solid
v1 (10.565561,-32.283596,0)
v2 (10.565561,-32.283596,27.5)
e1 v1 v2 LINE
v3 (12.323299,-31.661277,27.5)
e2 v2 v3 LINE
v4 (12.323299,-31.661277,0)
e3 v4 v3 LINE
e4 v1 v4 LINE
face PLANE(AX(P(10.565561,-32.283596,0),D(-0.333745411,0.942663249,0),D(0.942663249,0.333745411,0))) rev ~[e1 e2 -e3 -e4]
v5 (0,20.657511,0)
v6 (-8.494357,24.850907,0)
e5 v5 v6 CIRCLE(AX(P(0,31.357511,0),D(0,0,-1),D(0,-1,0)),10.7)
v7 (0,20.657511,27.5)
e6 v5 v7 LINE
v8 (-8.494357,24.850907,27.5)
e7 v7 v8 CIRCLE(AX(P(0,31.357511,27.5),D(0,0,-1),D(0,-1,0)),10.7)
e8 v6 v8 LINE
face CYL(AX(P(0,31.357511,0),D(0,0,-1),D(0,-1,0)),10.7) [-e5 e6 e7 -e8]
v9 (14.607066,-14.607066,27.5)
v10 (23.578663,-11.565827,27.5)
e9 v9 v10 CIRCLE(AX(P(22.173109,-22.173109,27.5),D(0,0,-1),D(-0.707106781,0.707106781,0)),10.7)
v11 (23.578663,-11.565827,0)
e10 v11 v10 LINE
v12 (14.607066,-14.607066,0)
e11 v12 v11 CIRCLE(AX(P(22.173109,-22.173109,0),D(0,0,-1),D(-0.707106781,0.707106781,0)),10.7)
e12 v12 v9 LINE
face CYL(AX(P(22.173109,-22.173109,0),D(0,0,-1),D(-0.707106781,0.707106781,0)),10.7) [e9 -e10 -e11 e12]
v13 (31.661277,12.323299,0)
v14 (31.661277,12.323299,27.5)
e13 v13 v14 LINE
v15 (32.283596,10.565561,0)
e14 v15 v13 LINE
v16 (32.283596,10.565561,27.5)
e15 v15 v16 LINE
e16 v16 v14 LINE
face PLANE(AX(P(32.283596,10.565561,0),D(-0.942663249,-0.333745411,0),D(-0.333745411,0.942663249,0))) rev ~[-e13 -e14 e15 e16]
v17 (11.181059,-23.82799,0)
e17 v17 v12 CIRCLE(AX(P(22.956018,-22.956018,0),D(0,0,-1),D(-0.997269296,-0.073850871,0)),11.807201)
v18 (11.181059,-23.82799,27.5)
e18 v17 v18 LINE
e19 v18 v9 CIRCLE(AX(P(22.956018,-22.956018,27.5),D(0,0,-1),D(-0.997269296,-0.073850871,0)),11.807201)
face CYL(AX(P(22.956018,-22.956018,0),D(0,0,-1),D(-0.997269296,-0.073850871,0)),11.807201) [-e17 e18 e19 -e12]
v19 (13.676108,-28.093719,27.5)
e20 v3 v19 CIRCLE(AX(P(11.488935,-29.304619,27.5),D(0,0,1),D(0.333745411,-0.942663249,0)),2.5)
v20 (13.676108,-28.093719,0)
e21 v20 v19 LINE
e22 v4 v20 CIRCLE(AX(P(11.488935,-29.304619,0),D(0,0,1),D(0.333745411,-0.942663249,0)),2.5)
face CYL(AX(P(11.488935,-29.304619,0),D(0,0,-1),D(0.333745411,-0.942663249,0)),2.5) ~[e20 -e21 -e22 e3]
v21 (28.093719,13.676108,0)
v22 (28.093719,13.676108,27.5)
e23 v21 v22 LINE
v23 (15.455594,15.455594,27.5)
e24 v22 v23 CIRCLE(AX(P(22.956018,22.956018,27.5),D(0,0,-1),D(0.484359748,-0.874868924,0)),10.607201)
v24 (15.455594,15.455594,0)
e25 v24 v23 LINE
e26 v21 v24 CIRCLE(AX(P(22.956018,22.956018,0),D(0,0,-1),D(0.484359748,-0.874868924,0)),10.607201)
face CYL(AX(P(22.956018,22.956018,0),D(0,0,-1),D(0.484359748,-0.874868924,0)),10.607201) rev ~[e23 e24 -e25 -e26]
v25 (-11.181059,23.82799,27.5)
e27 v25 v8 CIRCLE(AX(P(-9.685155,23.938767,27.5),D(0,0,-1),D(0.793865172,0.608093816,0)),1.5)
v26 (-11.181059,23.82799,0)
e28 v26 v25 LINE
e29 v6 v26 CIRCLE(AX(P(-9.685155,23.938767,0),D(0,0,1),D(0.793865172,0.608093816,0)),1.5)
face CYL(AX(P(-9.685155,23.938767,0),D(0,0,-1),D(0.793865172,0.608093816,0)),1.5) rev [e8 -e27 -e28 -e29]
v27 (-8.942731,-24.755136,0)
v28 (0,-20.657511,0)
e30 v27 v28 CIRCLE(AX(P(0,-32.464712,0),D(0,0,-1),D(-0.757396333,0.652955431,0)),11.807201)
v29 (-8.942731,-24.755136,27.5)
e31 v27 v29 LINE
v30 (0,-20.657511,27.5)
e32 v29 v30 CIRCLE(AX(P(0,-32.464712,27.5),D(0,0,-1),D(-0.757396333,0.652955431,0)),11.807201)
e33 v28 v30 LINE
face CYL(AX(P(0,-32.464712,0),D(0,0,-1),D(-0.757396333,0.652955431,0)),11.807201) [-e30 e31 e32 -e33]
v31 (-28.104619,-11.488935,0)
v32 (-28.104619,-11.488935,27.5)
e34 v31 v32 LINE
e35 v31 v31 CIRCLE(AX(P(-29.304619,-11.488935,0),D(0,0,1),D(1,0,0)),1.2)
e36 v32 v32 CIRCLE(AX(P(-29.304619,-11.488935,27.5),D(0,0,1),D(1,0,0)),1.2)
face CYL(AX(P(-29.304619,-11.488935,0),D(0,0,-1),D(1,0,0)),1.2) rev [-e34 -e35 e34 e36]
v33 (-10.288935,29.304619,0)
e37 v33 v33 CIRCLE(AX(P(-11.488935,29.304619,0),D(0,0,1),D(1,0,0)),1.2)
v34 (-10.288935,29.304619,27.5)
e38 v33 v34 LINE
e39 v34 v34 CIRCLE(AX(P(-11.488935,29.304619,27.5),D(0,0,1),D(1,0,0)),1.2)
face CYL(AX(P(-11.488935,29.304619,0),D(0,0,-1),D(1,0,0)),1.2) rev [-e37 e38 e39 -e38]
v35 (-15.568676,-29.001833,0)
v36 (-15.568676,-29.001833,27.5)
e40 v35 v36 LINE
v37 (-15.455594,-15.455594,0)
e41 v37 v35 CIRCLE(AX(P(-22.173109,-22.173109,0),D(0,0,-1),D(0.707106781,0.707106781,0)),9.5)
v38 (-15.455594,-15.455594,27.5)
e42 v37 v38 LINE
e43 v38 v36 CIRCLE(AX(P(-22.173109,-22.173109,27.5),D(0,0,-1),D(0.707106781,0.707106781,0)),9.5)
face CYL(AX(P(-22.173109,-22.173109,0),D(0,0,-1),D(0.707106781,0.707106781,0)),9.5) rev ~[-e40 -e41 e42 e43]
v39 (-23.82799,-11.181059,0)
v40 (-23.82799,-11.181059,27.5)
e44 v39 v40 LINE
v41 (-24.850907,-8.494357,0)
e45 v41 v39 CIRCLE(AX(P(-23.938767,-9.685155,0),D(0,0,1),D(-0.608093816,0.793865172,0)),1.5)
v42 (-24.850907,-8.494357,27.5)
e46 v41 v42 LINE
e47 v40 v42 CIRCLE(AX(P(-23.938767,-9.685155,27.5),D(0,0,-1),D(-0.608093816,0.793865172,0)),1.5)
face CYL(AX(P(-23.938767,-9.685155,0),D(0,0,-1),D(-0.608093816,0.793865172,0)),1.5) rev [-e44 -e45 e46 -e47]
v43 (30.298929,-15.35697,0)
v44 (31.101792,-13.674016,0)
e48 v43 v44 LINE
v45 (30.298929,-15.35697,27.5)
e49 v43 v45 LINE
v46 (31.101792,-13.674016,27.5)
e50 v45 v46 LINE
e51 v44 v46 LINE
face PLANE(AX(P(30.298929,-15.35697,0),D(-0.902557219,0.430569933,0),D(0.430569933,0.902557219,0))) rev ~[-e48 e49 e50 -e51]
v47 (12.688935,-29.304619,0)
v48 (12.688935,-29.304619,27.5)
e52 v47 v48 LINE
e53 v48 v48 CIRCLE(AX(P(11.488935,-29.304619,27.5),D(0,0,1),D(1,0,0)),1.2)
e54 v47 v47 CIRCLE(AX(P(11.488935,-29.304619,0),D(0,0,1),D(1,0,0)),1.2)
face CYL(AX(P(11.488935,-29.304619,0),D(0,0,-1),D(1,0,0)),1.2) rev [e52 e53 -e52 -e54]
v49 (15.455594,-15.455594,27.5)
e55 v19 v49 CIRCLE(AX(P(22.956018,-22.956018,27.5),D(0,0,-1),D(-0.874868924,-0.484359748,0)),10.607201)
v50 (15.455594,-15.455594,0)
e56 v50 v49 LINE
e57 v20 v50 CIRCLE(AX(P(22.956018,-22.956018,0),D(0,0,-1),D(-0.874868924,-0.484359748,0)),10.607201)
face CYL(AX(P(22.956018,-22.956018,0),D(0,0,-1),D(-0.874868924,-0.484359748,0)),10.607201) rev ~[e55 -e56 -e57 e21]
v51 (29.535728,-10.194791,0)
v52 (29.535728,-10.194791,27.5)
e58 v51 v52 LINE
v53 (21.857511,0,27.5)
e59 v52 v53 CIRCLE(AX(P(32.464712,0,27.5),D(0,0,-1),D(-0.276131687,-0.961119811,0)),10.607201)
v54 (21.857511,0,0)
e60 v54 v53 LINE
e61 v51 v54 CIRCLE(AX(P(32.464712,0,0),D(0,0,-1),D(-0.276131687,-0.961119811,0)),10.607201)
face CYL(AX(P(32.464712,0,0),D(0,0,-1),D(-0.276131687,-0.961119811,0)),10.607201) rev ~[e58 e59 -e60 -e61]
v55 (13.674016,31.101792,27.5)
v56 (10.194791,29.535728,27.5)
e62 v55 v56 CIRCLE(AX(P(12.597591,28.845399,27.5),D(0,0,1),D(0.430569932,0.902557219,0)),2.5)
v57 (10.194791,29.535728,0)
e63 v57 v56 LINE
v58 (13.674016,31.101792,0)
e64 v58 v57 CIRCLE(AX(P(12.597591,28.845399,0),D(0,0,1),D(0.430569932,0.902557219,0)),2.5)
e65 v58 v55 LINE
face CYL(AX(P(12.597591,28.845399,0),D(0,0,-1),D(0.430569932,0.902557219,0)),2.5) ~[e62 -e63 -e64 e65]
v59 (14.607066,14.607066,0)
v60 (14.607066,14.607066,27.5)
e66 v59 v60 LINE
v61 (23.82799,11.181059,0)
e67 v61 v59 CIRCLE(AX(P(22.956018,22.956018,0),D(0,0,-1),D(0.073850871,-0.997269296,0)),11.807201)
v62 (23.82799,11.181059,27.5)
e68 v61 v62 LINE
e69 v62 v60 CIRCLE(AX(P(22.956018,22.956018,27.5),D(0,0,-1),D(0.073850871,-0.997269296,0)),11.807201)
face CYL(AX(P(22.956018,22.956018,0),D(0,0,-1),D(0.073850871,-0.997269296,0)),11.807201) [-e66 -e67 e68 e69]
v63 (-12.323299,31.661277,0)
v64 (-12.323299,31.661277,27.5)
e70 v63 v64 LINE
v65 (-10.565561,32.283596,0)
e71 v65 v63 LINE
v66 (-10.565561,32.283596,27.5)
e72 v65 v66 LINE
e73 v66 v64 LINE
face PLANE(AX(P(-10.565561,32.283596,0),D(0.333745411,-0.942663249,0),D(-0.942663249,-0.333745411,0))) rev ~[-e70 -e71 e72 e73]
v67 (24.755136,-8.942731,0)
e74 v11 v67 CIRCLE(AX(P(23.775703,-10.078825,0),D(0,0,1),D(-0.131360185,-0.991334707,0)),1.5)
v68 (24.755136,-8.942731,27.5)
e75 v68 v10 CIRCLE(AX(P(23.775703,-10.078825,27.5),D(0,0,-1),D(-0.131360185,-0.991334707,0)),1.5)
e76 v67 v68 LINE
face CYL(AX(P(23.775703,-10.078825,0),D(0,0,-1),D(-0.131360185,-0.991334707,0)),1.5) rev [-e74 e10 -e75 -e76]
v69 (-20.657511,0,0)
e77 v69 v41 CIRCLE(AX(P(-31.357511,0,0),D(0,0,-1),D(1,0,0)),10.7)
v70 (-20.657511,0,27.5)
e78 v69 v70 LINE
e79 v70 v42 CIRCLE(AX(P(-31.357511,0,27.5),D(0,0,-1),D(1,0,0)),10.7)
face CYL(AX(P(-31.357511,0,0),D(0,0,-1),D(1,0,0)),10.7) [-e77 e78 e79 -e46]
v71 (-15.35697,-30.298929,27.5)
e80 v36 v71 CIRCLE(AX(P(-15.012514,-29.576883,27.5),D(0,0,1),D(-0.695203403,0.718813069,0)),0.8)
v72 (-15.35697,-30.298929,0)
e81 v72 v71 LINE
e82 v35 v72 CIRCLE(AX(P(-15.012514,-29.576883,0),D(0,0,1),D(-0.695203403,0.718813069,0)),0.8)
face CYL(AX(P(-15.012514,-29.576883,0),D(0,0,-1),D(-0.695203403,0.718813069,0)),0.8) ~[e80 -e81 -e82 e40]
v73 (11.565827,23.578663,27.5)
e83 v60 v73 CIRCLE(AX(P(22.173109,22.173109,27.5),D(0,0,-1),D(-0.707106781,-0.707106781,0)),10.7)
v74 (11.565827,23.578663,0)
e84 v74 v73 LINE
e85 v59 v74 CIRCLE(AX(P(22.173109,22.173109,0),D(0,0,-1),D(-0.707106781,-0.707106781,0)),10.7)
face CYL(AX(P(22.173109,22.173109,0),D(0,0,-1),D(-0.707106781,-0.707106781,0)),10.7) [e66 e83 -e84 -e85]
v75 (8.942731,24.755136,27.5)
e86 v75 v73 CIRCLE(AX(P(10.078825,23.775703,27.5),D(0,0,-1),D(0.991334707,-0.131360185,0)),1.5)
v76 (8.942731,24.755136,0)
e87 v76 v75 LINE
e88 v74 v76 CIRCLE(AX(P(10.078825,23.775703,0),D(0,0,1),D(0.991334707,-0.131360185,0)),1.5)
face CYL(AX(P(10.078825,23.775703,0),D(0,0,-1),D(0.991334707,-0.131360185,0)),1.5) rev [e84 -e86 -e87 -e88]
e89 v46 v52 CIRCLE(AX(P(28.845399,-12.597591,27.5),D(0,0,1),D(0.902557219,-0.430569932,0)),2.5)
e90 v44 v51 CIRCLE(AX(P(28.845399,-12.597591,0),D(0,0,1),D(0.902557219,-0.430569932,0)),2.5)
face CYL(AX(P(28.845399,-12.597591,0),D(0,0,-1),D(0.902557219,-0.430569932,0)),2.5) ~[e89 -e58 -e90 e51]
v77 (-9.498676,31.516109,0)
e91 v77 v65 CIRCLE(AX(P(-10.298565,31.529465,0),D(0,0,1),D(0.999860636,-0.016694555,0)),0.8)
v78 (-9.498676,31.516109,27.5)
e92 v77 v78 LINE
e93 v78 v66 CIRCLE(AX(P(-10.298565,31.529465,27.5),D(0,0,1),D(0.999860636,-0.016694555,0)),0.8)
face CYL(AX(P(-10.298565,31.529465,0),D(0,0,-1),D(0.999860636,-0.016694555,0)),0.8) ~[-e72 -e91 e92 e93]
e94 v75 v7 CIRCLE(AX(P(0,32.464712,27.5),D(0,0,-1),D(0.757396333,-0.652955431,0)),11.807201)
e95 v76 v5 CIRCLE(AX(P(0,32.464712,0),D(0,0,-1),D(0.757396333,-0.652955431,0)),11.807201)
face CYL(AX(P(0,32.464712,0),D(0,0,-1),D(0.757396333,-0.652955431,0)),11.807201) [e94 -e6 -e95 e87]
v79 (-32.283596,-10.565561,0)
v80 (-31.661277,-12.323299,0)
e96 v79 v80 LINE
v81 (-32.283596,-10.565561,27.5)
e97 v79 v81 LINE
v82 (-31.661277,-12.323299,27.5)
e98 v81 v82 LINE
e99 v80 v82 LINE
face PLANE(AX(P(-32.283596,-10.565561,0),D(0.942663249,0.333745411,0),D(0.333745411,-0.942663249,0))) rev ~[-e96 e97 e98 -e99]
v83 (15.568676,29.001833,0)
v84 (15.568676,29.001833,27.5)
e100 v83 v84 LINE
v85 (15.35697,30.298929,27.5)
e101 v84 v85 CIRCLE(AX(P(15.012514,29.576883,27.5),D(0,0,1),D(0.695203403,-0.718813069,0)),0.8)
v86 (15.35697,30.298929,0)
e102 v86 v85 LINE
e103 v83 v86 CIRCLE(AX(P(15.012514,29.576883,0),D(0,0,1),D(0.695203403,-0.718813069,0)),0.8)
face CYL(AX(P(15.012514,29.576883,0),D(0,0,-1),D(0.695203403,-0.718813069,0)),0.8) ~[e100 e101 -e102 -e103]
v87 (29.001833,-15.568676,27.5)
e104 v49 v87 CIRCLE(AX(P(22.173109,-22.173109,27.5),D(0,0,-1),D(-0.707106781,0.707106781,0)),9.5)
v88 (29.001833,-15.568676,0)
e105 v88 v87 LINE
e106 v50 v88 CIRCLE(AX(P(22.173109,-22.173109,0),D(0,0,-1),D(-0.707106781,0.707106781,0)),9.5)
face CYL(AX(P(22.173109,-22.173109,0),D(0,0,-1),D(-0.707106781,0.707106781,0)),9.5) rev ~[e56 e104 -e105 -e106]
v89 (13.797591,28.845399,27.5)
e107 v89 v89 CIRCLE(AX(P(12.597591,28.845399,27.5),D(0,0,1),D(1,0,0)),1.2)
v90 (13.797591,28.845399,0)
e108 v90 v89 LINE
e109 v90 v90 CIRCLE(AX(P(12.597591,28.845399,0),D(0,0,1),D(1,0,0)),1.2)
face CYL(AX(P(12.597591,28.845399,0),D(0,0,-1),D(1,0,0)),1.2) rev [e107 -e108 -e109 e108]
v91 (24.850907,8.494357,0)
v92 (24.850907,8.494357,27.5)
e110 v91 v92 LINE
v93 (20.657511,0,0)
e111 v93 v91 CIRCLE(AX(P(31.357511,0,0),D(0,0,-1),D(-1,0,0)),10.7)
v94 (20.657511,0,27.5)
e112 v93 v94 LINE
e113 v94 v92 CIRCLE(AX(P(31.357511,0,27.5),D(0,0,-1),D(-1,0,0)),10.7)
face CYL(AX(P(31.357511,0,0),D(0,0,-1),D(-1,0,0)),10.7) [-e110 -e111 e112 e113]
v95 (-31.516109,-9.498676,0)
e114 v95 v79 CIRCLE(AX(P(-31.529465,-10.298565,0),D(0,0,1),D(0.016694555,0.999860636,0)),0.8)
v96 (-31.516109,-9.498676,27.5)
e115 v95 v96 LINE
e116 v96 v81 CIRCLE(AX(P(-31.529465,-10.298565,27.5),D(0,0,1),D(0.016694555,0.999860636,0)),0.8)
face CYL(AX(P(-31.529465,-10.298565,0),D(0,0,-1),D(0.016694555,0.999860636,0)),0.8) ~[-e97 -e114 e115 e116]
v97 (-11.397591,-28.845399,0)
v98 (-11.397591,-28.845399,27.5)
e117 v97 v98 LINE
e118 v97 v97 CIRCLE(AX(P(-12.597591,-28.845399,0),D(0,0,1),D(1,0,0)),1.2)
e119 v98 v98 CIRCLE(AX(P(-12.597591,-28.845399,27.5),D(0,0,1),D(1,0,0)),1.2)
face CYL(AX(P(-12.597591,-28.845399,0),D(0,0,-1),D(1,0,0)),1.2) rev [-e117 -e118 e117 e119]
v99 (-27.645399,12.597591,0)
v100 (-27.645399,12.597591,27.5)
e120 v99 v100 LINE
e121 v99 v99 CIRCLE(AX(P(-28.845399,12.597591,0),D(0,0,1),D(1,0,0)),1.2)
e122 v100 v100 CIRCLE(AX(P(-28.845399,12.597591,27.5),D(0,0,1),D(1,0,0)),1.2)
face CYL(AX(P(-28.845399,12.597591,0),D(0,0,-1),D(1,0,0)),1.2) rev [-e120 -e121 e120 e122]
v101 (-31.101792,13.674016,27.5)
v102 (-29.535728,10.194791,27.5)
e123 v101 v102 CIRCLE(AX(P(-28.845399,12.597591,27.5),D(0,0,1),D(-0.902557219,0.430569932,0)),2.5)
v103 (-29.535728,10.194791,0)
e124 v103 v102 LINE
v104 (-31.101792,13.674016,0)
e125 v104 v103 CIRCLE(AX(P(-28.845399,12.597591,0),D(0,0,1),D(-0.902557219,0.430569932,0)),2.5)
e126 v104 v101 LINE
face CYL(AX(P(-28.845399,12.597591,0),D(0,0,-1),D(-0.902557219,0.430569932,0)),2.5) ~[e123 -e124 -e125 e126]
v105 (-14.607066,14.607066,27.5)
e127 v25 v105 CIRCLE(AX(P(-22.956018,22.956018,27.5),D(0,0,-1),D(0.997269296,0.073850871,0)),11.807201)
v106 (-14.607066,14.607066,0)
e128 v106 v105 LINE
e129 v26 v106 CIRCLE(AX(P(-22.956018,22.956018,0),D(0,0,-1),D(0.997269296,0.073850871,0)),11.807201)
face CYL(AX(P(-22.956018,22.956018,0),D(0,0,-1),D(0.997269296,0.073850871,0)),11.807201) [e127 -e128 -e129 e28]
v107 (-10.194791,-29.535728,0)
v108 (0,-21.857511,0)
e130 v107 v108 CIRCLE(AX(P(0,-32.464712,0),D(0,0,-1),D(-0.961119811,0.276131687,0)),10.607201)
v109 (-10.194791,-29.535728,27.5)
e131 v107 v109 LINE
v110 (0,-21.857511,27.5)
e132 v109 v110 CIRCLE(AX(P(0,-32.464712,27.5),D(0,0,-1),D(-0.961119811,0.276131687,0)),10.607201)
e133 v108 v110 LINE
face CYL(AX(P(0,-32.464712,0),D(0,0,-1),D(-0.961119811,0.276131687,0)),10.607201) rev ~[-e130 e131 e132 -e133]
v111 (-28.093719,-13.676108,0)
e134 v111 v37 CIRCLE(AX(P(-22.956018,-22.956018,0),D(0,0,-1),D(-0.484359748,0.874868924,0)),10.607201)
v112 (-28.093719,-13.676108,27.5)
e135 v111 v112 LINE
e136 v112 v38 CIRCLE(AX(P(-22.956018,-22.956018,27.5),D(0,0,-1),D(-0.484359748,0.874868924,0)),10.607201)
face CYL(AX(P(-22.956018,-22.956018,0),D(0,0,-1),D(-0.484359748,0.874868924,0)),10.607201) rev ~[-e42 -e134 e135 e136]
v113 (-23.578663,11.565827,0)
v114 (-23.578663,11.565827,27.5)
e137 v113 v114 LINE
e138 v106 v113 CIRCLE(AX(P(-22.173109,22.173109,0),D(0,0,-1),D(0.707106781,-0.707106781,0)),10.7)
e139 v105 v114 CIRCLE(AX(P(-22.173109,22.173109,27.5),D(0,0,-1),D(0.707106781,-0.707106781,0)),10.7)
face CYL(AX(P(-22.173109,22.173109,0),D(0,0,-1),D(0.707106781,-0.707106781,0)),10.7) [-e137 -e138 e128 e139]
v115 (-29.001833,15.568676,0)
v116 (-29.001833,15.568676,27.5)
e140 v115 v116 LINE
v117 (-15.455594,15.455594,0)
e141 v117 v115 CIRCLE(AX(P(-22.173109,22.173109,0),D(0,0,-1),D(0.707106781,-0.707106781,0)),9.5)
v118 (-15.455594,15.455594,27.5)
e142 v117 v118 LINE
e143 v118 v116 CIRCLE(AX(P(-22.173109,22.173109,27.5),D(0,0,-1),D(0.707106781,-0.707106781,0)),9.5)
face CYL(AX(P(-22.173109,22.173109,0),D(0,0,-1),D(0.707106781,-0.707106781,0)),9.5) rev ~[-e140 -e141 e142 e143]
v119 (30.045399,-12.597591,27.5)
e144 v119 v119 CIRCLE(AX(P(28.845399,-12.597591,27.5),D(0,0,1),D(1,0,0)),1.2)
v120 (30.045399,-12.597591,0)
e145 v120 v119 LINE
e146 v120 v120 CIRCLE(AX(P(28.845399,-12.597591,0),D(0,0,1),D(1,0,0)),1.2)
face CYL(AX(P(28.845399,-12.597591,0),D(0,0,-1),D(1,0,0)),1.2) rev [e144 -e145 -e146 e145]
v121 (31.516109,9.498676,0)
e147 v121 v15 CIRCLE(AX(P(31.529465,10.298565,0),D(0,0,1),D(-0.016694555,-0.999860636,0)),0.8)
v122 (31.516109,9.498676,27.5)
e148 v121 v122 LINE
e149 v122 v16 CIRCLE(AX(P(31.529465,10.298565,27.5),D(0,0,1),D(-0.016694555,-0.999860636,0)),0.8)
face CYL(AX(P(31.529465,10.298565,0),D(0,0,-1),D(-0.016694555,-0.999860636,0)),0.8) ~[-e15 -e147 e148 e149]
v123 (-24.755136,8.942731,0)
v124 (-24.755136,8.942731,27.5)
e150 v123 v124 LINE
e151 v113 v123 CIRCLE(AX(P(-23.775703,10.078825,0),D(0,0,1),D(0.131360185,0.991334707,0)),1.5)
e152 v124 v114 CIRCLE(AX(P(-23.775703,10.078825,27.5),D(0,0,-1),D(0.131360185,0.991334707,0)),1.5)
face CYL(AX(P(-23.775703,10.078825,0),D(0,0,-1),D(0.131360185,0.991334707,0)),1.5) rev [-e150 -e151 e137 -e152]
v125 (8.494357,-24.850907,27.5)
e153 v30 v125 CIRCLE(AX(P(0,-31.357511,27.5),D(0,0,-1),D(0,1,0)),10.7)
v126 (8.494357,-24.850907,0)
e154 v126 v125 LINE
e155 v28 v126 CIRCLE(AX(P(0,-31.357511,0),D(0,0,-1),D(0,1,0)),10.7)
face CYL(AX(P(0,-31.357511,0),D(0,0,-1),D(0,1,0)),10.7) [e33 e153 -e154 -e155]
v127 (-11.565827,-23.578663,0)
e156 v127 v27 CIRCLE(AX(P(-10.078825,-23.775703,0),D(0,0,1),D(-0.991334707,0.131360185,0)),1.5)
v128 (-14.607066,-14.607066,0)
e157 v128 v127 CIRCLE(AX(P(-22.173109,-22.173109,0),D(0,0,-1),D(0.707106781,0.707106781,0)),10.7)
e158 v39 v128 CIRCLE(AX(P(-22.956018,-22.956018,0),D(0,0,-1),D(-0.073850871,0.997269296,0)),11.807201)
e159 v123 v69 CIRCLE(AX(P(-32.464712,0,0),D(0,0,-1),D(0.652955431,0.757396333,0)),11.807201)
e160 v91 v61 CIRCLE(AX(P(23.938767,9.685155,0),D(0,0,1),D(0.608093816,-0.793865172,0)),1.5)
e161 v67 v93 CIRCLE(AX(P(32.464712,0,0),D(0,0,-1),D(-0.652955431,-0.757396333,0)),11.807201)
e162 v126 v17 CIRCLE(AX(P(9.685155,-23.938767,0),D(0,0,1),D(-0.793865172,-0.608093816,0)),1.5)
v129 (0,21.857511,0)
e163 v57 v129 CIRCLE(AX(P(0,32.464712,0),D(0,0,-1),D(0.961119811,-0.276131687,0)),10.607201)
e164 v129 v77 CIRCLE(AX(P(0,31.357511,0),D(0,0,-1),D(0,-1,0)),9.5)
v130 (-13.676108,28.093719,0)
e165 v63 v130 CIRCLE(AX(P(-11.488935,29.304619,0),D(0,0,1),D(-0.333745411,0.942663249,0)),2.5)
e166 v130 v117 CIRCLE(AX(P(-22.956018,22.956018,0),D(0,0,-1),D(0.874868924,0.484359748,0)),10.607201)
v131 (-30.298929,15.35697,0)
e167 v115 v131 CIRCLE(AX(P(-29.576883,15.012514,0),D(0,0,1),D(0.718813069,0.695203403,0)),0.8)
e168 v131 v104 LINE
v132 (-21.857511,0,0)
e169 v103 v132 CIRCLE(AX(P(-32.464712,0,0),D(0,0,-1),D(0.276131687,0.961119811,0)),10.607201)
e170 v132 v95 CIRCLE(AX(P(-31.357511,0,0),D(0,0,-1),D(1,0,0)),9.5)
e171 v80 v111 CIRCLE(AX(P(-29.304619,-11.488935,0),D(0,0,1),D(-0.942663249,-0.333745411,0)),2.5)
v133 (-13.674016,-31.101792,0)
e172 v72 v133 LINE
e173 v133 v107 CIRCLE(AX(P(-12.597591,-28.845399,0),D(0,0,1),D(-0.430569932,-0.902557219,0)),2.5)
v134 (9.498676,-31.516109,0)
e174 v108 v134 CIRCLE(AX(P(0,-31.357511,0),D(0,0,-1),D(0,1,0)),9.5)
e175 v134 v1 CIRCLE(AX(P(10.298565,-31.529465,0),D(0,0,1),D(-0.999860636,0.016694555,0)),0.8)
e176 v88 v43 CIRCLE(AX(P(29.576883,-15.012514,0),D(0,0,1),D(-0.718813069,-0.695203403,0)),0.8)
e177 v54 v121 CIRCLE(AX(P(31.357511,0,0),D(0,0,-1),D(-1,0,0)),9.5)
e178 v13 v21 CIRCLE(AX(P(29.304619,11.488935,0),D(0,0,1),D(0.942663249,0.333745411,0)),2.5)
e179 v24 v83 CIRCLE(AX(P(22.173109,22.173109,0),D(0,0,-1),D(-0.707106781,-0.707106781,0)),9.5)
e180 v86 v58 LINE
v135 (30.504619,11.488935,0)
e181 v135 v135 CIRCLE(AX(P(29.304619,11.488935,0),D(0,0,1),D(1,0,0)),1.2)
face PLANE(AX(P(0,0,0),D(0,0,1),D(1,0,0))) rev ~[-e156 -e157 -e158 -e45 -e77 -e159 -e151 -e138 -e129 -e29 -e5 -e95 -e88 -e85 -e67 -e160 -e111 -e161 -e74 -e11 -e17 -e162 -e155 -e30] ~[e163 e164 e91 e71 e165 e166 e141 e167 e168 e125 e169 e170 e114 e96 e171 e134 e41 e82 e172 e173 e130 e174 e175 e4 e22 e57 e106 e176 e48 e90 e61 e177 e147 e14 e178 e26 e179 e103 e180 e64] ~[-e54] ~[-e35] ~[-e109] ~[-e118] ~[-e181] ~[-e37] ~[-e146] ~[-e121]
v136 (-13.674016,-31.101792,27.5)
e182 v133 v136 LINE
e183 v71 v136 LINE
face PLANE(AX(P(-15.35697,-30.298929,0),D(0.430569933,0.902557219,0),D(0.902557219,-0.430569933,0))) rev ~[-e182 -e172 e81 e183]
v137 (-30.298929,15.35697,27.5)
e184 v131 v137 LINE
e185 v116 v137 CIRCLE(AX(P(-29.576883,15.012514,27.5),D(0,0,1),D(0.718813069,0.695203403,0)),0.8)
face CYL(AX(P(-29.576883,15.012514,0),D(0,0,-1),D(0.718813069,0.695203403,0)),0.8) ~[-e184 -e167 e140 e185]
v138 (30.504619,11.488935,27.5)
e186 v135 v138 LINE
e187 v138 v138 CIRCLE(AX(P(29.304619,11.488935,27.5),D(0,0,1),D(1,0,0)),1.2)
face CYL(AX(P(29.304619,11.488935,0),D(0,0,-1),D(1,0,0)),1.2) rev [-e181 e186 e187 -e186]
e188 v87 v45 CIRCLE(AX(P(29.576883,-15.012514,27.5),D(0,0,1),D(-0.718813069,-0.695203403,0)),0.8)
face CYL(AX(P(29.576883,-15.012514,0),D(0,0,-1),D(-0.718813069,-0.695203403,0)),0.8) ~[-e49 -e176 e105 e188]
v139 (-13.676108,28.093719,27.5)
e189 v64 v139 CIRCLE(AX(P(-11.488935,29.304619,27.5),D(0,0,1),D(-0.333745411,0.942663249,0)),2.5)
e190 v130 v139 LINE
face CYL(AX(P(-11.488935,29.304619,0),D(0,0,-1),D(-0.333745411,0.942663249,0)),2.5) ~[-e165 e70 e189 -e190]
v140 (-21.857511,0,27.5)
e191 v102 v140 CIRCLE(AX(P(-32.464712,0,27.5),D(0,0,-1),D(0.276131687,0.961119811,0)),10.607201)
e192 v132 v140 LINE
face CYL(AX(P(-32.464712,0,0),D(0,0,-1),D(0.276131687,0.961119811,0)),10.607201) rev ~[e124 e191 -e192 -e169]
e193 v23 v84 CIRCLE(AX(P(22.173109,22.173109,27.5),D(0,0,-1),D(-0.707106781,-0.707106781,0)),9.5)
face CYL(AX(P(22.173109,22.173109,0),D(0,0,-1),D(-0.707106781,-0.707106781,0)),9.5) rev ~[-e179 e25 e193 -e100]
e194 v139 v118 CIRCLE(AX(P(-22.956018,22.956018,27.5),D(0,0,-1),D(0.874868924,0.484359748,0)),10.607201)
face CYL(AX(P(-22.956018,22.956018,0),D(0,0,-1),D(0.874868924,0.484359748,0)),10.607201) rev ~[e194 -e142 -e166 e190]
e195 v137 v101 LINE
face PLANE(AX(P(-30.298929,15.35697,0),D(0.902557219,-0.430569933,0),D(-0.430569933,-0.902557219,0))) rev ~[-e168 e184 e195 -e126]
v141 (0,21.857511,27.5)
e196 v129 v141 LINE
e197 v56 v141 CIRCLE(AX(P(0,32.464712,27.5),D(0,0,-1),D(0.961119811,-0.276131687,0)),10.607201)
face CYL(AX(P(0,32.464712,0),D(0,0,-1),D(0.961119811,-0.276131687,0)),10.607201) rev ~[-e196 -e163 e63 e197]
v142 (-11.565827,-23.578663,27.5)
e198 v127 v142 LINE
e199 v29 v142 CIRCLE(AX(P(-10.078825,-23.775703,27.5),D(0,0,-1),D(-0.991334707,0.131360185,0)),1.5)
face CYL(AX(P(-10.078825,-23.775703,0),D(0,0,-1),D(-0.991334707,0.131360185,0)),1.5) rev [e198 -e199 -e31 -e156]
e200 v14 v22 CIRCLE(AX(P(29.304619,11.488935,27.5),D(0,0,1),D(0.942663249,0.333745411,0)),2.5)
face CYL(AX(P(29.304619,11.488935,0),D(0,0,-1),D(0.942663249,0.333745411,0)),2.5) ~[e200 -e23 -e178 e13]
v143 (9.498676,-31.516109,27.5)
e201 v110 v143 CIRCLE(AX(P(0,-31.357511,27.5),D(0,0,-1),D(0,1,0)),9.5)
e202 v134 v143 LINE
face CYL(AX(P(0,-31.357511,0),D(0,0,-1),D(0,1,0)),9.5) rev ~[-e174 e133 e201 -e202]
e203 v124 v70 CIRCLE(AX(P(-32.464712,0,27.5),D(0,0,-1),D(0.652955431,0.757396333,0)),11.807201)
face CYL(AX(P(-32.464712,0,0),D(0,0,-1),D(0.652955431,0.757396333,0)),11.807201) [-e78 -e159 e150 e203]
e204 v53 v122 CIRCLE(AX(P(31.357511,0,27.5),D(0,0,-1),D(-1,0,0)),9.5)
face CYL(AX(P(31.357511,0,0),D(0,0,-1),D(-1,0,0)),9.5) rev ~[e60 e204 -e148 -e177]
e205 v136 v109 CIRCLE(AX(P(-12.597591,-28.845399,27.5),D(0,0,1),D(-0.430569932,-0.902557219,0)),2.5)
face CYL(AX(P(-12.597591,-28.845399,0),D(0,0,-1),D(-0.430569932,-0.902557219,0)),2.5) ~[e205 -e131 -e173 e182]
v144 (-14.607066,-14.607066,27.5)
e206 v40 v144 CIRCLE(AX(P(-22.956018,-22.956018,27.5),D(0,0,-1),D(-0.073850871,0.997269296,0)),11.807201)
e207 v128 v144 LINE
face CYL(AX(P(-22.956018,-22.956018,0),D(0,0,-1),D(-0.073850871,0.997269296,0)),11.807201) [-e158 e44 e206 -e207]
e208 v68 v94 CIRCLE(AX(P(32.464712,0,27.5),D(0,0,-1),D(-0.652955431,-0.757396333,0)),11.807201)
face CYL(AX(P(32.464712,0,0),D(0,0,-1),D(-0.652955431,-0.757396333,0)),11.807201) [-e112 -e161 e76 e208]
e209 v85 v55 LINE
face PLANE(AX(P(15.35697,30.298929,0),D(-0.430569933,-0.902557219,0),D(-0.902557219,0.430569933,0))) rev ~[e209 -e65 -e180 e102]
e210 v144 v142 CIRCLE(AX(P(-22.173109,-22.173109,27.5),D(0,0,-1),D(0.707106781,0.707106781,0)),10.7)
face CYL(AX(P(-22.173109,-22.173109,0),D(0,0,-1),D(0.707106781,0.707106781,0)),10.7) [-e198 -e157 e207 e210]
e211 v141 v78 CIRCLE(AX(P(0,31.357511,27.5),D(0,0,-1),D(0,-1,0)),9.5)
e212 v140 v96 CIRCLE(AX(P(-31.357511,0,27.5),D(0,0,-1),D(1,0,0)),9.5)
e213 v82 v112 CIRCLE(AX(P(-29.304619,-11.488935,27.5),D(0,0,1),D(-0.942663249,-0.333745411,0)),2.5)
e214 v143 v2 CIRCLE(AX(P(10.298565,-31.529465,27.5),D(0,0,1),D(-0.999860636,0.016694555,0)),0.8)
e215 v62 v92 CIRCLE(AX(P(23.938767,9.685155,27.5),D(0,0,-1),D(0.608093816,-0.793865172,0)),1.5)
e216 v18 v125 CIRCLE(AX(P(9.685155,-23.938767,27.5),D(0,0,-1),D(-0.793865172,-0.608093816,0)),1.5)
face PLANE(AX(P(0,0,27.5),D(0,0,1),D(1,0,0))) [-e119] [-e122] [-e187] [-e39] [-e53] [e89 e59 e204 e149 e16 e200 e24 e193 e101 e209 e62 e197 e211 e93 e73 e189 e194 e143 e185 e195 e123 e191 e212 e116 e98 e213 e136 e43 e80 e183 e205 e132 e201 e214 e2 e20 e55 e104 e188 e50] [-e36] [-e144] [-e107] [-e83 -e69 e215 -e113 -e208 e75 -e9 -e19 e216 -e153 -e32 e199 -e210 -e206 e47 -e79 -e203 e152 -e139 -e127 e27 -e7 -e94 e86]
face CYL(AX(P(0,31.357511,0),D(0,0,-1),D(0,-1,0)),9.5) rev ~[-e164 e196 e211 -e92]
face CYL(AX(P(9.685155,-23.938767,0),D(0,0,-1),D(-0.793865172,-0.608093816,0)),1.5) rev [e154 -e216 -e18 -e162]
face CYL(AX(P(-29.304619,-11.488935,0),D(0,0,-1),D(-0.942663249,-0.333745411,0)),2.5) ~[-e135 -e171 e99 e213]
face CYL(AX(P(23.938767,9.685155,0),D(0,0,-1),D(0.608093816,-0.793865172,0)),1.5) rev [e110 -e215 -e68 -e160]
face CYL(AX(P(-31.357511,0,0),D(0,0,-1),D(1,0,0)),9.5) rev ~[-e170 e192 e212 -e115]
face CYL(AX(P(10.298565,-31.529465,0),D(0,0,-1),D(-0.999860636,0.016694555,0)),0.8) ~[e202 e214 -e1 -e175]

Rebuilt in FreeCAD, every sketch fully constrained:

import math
import FreeCAD as App
import Part
import Sketcher

doc = App.newDocument("Part")
body = doc.addObject("PartDesign::Body", "Body")

# Sketch on XY plane
sketch1 = doc.addObject("Sketcher::SketchObject", "Sketch")
body.addObject(sketch1)
sketch1.AttachmentSupport = (doc.XY_Plane, [""])
sketch1.MapMode = "FlatFace"
sketch1.addGeometry([
    Part.LineSegment(App.Vector(15.35697, 30.298929, 0), App.Vector(13.674016, 31.101792, 0)),  # 0
    Part.ArcOfCircle(Part.Circle(App.Vector(12.597591, 28.845399, 0), App.Vector(0, 0, 1), 2.5), math.radians(64.496265), math.radians(163.970533)),  # 1
    Part.ArcOfCircle(Part.Circle(App.Vector(0, 32.464712, 0), App.Vector(0, 0, 1), 10.607201), math.radians(-90), math.radians(-16.029467)),  # 2
    Part.ArcOfCircle(Part.Circle(App.Vector(0, 31.357511, 0), App.Vector(0, 0, 1), 9.5), math.radians(179.043428), math.radians(270)),  # 3
    Part.ArcOfCircle(Part.Circle(App.Vector(-10.298565, 31.529465, 0), App.Vector(0, 0, 1), 0.8), math.radians(-0.956572), math.radians(109.496265)),  # 4
    Part.LineSegment(App.Vector(-10.565561, 32.283596, 0), App.Vector(-12.323299, 31.661277, 0)),  # 5
    Part.ArcOfCircle(Part.Circle(App.Vector(-11.488935, 29.304619, 0), App.Vector(0, 0, 1), 2.5), math.radians(109.496265), math.radians(208.970533)),  # 6
    Part.ArcOfCircle(Part.Circle(App.Vector(-22.956018, 22.956018, 0), App.Vector(0, 0, 1), 10.607201), math.radians(-45), math.radians(28.970533)),  # 7
    Part.ArcOfCircle(Part.Circle(App.Vector(-22.173109, 22.173109, 0), App.Vector(0, 0, 1), 9.5), math.radians(-135.956572), math.radians(-45)),  # 8
    Part.ArcOfCircle(Part.Circle(App.Vector(-29.576883, 15.012514, 0), App.Vector(0, 0, 1), 0.8), math.radians(44.043428), math.radians(154.496265)),  # 9
    Part.LineSegment(App.Vector(-30.298929, 15.35697, 0), App.Vector(-31.101792, 13.674016, 0)),  # 10
    Part.ArcOfCircle(Part.Circle(App.Vector(-28.845399, 12.597591, 0), App.Vector(0, 0, 1), 2.5), math.radians(154.496265), math.radians(253.970533)),  # 11
    Part.ArcOfCircle(Part.Circle(App.Vector(-32.464712, 0, 0), App.Vector(0, 0, 1), 10.607201), math.radians(0), math.radians(73.970533)),  # 12
    Part.ArcOfCircle(Part.Circle(App.Vector(-31.357511, 0, 0), App.Vector(0, 0, 1), 9.5), math.radians(-90.956572), math.radians(0)),  # 13
    Part.ArcOfCircle(Part.Circle(App.Vector(-31.529465, -10.298565, 0), App.Vector(0, 0, 1), 0.8), math.radians(89.043428), math.radians(199.496265)),  # 14
    Part.LineSegment(App.Vector(-32.283596, -10.565561, 0), App.Vector(-31.661277, -12.323299, 0)),  # 15
    Part.ArcOfCircle(Part.Circle(App.Vector(-29.304619, -11.488935, 0), App.Vector(0, 0, 1), 2.5), math.radians(-160.503735), math.radians(-61.029467)),  # 16
    Part.ArcOfCircle(Part.Circle(App.Vector(-22.956018, -22.956018, 0), App.Vector(0, 0, 1), 10.607201), math.radians(45), math.radians(118.970533)),  # 17
    Part.ArcOfCircle(Part.Circle(App.Vector(-22.173109, -22.173109, 0), App.Vector(0, 0, 1), 9.5), math.radians(-45.956572), math.radians(45)),  # 18
    Part.ArcOfCircle(Part.Circle(App.Vector(-15.012514, -29.576883, 0), App.Vector(0, 0, 1), 0.8), math.radians(134.043428), math.radians(244.496265)),  # 19
    Part.LineSegment(App.Vector(-15.35697, -30.298929, 0), App.Vector(-13.674016, -31.101792, 0)),  # 20
    Part.ArcOfCircle(Part.Circle(App.Vector(-12.597591, -28.845399, 0), App.Vector(0, 0, 1), 2.5), math.radians(-115.503735), math.radians(-16.029467)),  # 21
    Part.ArcOfCircle(Part.Circle(App.Vector(0, -32.464712, 0), App.Vector(0, 0, 1), 10.607201), math.radians(90), math.radians(163.970533)),  # 22
    Part.ArcOfCircle(Part.Circle(App.Vector(0, -31.357511, 0), App.Vector(0, 0, 1), 9.5), math.radians(-0.956572), math.radians(90)),  # 23
    Part.ArcOfCircle(Part.Circle(App.Vector(10.298565, -31.529465, 0), App.Vector(0, 0, 1), 0.8), math.radians(179.043428), math.radians(289.496265)),  # 24
    Part.LineSegment(App.Vector(10.565561, -32.283596, 0), App.Vector(12.323299, -31.661277, 0)),  # 25
    Part.ArcOfCircle(Part.Circle(App.Vector(11.488935, -29.304619, 0), App.Vector(0, 0, 1), 2.5), math.radians(-70.503735), math.radians(28.970533)),  # 26
    Part.ArcOfCircle(Part.Circle(App.Vector(22.956018, -22.956018, 0), App.Vector(0, 0, 1), 10.607201), math.radians(135), math.radians(208.970533)),  # 27
    Part.ArcOfCircle(Part.Circle(App.Vector(22.173109, -22.173109, 0), App.Vector(0, 0, 1), 9.5), math.radians(44.043428), math.radians(135)),  # 28
    Part.ArcOfCircle(Part.Circle(App.Vector(29.576883, -15.012514, 0), App.Vector(0, 0, 1), 0.8), math.radians(-135.956572), math.radians(-25.503735)),  # 29
    Part.LineSegment(App.Vector(30.298929, -15.35697, 0), App.Vector(31.101792, -13.674016, 0)),  # 30
    Part.ArcOfCircle(Part.Circle(App.Vector(28.845399, -12.597591, 0), App.Vector(0, 0, 1), 2.5), math.radians(-25.503735), math.radians(73.970533)),  # 31
    Part.ArcOfCircle(Part.Circle(App.Vector(32.464712, 0, 0), App.Vector(0, 0, 1), 10.607201), math.radians(180), math.radians(253.970533)),  # 32
    Part.ArcOfCircle(Part.Circle(App.Vector(31.357511, 0, 0), App.Vector(0, 0, 1), 9.5), math.radians(89.043428), math.radians(180)),  # 33
    Part.ArcOfCircle(Part.Circle(App.Vector(31.529465, 10.298565, 0), App.Vector(0, 0, 1), 0.8), math.radians(-90.956572), math.radians(19.496265)),  # 34
    Part.LineSegment(App.Vector(32.283596, 10.565561, 0), App.Vector(31.661277, 12.323299, 0)),  # 35
    Part.ArcOfCircle(Part.Circle(App.Vector(29.304619, 11.488935, 0), App.Vector(0, 0, 1), 2.5), math.radians(19.496265), math.radians(118.970533)),  # 36
    Part.ArcOfCircle(Part.Circle(App.Vector(22.956018, 22.956018, 0), App.Vector(0, 0, 1), 10.607201), math.radians(-135), math.radians(-61.029467)),  # 37
    Part.ArcOfCircle(Part.Circle(App.Vector(22.173109, 22.173109, 0), App.Vector(0, 0, 1), 9.5), math.radians(134.043428), math.radians(225)),  # 38
    Part.ArcOfCircle(Part.Circle(App.Vector(15.012514, 29.576883, 0), App.Vector(0, 0, 1), 0.8), math.radians(-45.956572), math.radians(64.496265)),  # 39
    Part.Circle(App.Vector(-12.597591, -28.845399, 0), App.Vector(0, 0, 1), 1.2),  # 40
    Part.Circle(App.Vector(-29.304619, -11.488935, 0), App.Vector(0, 0, 1), 1.2),  # 41
    Part.Circle(App.Vector(11.488935, -29.304619, 0), App.Vector(0, 0, 1), 1.2),  # 42
    Part.Circle(App.Vector(28.845399, -12.597591, 0), App.Vector(0, 0, 1), 1.2),  # 43
    Part.Circle(App.Vector(-28.845399, 12.597591, 0), App.Vector(0, 0, 1), 1.2),  # 44
    Part.Circle(App.Vector(-11.488935, 29.304619, 0), App.Vector(0, 0, 1), 1.2),  # 45
    Part.Circle(App.Vector(29.304619, 11.488935, 0), App.Vector(0, 0, 1), 1.2),  # 46
    Part.Circle(App.Vector(12.597591, 28.845399, 0), App.Vector(0, 0, 1), 1.2),  # 47
], False)
sketch1.addConstraint([
    Sketcher.Constraint("Coincident", 0, 2, 1, 1),
    Sketcher.Constraint("Coincident", 1, 2, 2, 2),
    Sketcher.Constraint("Coincident", 2, 1, 3, 2),
    Sketcher.Constraint("Coincident", 3, 1, 4, 1),
    Sketcher.Constraint("Coincident", 4, 2, 5, 1),
    Sketcher.Constraint("Coincident", 5, 2, 6, 1),
    Sketcher.Constraint("Coincident", 6, 2, 7, 2),
    Sketcher.Constraint("Coincident", 7, 1, 8, 2),
    Sketcher.Constraint("Coincident", 8, 1, 9, 1),
    Sketcher.Constraint("Coincident", 9, 2, 10, 1),
    Sketcher.Constraint("Coincident", 10, 2, 11, 1),
    Sketcher.Constraint("Coincident", 11, 2, 12, 2),
    Sketcher.Constraint("Coincident", 12, 1, 13, 2),
    Sketcher.Constraint("Coincident", 13, 1, 14, 1),
    Sketcher.Constraint("Coincident", 14, 2, 15, 1),
    Sketcher.Constraint("Coincident", 15, 2, 16, 1),
    Sketcher.Constraint("Coincident", 16, 2, 17, 2),
    Sketcher.Constraint("Coincident", 17, 1, 18, 2),
    Sketcher.Constraint("Coincident", 18, 1, 19, 1),
    Sketcher.Constraint("Coincident", 19, 2, 20, 1),
    Sketcher.Constraint("Coincident", 20, 2, 21, 1),
    Sketcher.Constraint("Coincident", 21, 2, 22, 2),
    Sketcher.Constraint("Coincident", 22, 1, 23, 2),
    Sketcher.Constraint("Coincident", 23, 1, 24, 1),
    Sketcher.Constraint("Coincident", 24, 2, 25, 1),
    Sketcher.Constraint("Coincident", 25, 2, 26, 1),
    Sketcher.Constraint("Coincident", 26, 2, 27, 2),
    Sketcher.Constraint("Coincident", 27, 1, 28, 2),
    Sketcher.Constraint("Coincident", 28, 1, 29, 1),
    Sketcher.Constraint("Coincident", 29, 2, 30, 1),
    Sketcher.Constraint("Coincident", 30, 2, 31, 1),
    Sketcher.Constraint("Coincident", 31, 2, 32, 2),
    Sketcher.Constraint("Coincident", 32, 1, 33, 2),
    Sketcher.Constraint("Coincident", 33, 1, 34, 1),
    Sketcher.Constraint("Coincident", 34, 2, 35, 1),
    Sketcher.Constraint("Coincident", 35, 2, 36, 1),
    Sketcher.Constraint("Coincident", 36, 2, 37, 2),
    Sketcher.Constraint("Coincident", 37, 1, 38, 2),
    Sketcher.Constraint("Coincident", 38, 1, 39, 1),
    Sketcher.Constraint("Coincident", 39, 2, 0, 1),
    Sketcher.Constraint("Coincident", 40, 3, 21, 3),
    Sketcher.Constraint("Coincident", 41, 3, 16, 3),
    Sketcher.Constraint("Coincident", 42, 3, 26, 3),
    Sketcher.Constraint("Coincident", 43, 3, 31, 3),
    Sketcher.Constraint("Coincident", 44, 3, 11, 3),
    Sketcher.Constraint("Coincident", 45, 3, 6, 3),
    Sketcher.Constraint("Coincident", 46, 3, 36, 3),
    Sketcher.Constraint("Coincident", 47, 3, 1, 3),
    Sketcher.Constraint("PointOnObject", 2, 3, -2),
    Sketcher.Constraint("PointOnObject", 3, 3, -2),
    Sketcher.Constraint("PointOnObject", 12, 3, -1),
    Sketcher.Constraint("PointOnObject", 13, 3, -1),
    Sketcher.Constraint("PointOnObject", 22, 3, -2),
    Sketcher.Constraint("PointOnObject", 23, 3, -2),
    Sketcher.Constraint("PointOnObject", 32, 3, -1),
    Sketcher.Constraint("PointOnObject", 33, 3, -1),
    Sketcher.Constraint("PointOnObject", 2, 1, -2),
    Sketcher.Constraint("PointOnObject", 12, 1, -1),
    Sketcher.Constraint("PointOnObject", 22, 1, -2),
    Sketcher.Constraint("PointOnObject", 32, 1, -1),
    Sketcher.Constraint("Diameter", 40, 2.4),
    Sketcher.Constraint("Diameter", 41, 2.4),
    Sketcher.Constraint("Diameter", 42, 2.4),
    Sketcher.Constraint("Diameter", 43, 2.4),
    Sketcher.Constraint("Diameter", 44, 2.4),
    Sketcher.Constraint("Diameter", 45, 2.4),
    Sketcher.Constraint("Diameter", 46, 2.4),
    Sketcher.Constraint("Diameter", 47, 2.4),
    Sketcher.Constraint("Radius", 1, 2.5),
    Sketcher.Constraint("Radius", 3, 9.5),
    Sketcher.Constraint("Radius", 4, 0.8),
    Sketcher.Constraint("Radius", 6, 2.5),
    Sketcher.Constraint("Radius", 8, 9.5),
    Sketcher.Constraint("Radius", 9, 0.8),
    Sketcher.Constraint("Radius", 11, 2.5),
    Sketcher.Constraint("Radius", 13, 9.5),
    Sketcher.Constraint("Radius", 14, 0.8),
    Sketcher.Constraint("Radius", 16, 2.5),
    Sketcher.Constraint("Radius", 18, 9.5),
    Sketcher.Constraint("Radius", 19, 0.8),
    Sketcher.Constraint("Radius", 21, 2.5),
    Sketcher.Constraint("Radius", 23, 9.5),
    Sketcher.Constraint("Radius", 24, 0.8),
    Sketcher.Constraint("Radius", 26, 2.5),
    Sketcher.Constraint("Radius", 28, 9.5),
    Sketcher.Constraint("Radius", 29, 0.8),
    Sketcher.Constraint("Radius", 31, 2.5),
    Sketcher.Constraint("Radius", 33, 9.5),
    Sketcher.Constraint("Radius", 34, 0.8),
    Sketcher.Constraint("Radius", 36, 2.5),
    Sketcher.Constraint("Radius", 38, 9.5),
    Sketcher.Constraint("Radius", 39, 0.8),
    Sketcher.Constraint("Radius", 2, 10.607201),
    Sketcher.Constraint("Radius", 7, 10.607201),
    Sketcher.Constraint("Radius", 12, 10.607201),
    Sketcher.Constraint("Radius", 17, 10.607201),
    Sketcher.Constraint("Radius", 22, 10.607201),
    Sketcher.Constraint("Radius", 27, 10.607201),
    Sketcher.Constraint("Radius", 32, 10.607201),
    Sketcher.Constraint("Radius", 37, 10.607201),
    Sketcher.Constraint("DistanceY", -1, 1, 1, 3, 28.845399),
    Sketcher.Constraint("DistanceX", 11, 3, -1, 1, 28.845399),
    Sketcher.Constraint("DistanceY", 21, 3, -1, 1, 28.845399),
    Sketcher.Constraint("DistanceX", -1, 1, 31, 3, 28.845399),
    Sketcher.Constraint("DistanceX", 5, 2, -1, 1, 12.323299),
    Sketcher.Constraint("DistanceY", 15, 2, -1, 1, 12.323299),
    Sketcher.Constraint("DistanceX", -1, 1, 25, 2, 12.323299),
    Sketcher.Constraint("DistanceY", -1, 1, 35, 2, 12.323299),
    Sketcher.Constraint("Distance", 0, 1.864651),
    Sketcher.Constraint("Distance", 5, 1.864651),
    Sketcher.Constraint("Distance", 10, 1.864651),
    Sketcher.Constraint("Distance", 15, 1.864651),
    Sketcher.Constraint("Distance", 20, 1.864651),
    Sketcher.Constraint("Distance", 25, 1.864651),
    Sketcher.Constraint("Distance", 30, 1.864651),
    Sketcher.Constraint("Distance", 35, 1.864651),
    Sketcher.Constraint("DistanceX", -1, 1, 1, 3, 12.597591),
    Sketcher.Constraint("DistanceY", -1, 1, 6, 3, 29.304619),
    Sketcher.Constraint("DistanceX", 7, 3, -1, 1, 22.956018),
    Sketcher.Constraint("DistanceY", -1, 1, 7, 3, 22.956018),
    Sketcher.Constraint("DistanceX", 8, 3, -1, 1, 22.173109),
    Sketcher.Constraint("DistanceY", -1, 1, 11, 3, 12.597591),
    Sketcher.Constraint("DistanceX", 16, 3, -1, 1, 29.304619),
    Sketcher.Constraint("DistanceX", 17, 3, -1, 1, 22.956018),
    Sketcher.Constraint("DistanceY", 17, 3, -1, 1, 22.956018),
    Sketcher.Constraint("DistanceX", 18, 3, -1, 1, 22.173109),
    Sketcher.Constraint("DistanceX", 21, 3, -1, 1, 12.597591),
    Sketcher.Constraint("DistanceY", 26, 3, -1, 1, 29.304619),
    Sketcher.Constraint("DistanceX", -1, 1, 27, 3, 22.956018),
    Sketcher.Constraint("DistanceY", 27, 3, -1, 1, 22.956018),
    Sketcher.Constraint("DistanceX", -1, 1, 28, 3, 22.173109),
    Sketcher.Constraint("DistanceY", 31, 3, -1, 1, 12.597591),
    Sketcher.Constraint("DistanceX", -1, 1, 36, 3, 29.304619),
    Sketcher.Constraint("DistanceX", -1, 1, 37, 3, 22.956018),
    Sketcher.Constraint("DistanceY", -1, 1, 37, 3, 22.956018),
    Sketcher.Constraint("DistanceX", -1, 1, 38, 3, 22.173109),
    Sketcher.Constraint("DistanceY", -1, 1, 0, 2, 31.101792),
    Sketcher.Constraint("DistanceX", -1, 1, 1, 2, 10.194791),
    Sketcher.Constraint("DistanceY", -1, 1, 3, 1, 31.516109),
    Sketcher.Constraint("DistanceX", 4, 2, -1, 1, 10.565561),
    Sketcher.Constraint("DistanceY", -1, 1, 6, 2, 28.093719),
    Sketcher.Constraint("DistanceX", 9, 2, -1, 1, 30.298929),
    Sketcher.Constraint("DistanceY", -1, 1, 9, 2, 15.35697),
    Sketcher.Constraint("DistanceY", -1, 1, 11, 2, 10.194791),
    Sketcher.Constraint("DistanceX", 13, 1, -1, 1, 31.516109),
    Sketcher.Constraint("DistanceY", 14, 2, -1, 1, 10.565561),
    Sketcher.Constraint("DistanceX", 16, 2, -1, 1, 28.093719),
    Sketcher.Constraint("DistanceX", 19, 2, -1, 1, 15.35697),
    Sketcher.Constraint("DistanceY", 19, 2, -1, 1, 30.298929),
    Sketcher.Constraint("DistanceX", 21, 2, -1, 1, 10.194791),
    Sketcher.Constraint("DistanceY", 23, 1, -1, 1, 31.516109),
    Sketcher.Constraint("DistanceX", -1, 1, 24, 2, 10.565561),
    Sketcher.Constraint("DistanceY", 26, 2, -1, 1, 28.093719),
    Sketcher.Constraint("DistanceX", -1, 1, 29, 2, 30.298929),
    Sketcher.Constraint("DistanceY", 29, 2, -1, 1, 15.35697),
    Sketcher.Constraint("DistanceY", 31, 2, -1, 1, 10.194791),
    Sketcher.Constraint("DistanceX", -1, 1, 33, 1, 31.516109),
    Sketcher.Constraint("DistanceY", -1, 1, 34, 2, 10.565561),
    Sketcher.Constraint("DistanceX", -1, 1, 36, 2, 28.093719),
    Sketcher.Constraint("DistanceX", -1, 1, 39, 2, 15.35697),
    Sketcher.Constraint("DistanceX", 7, 1, -1, 1, 15.455594),
    Sketcher.Constraint("DistanceX", 8, 1, -1, 1, 29.001833),
    Sketcher.Constraint("DistanceX", 17, 1, -1, 1, 15.455594),
    Sketcher.Constraint("DistanceX", 18, 1, -1, 1, 15.568676),
    Sketcher.Constraint("DistanceX", -1, 1, 27, 1, 15.455594),
    Sketcher.Constraint("DistanceX", -1, 1, 28, 1, 29.001833),
    Sketcher.Constraint("DistanceX", -1, 1, 37, 1, 15.455594),
    Sketcher.Constraint("DistanceX", -1, 1, 38, 1, 15.568676),
])
pad1 = doc.addObject("PartDesign::Pad", "Pad")
body.addObject(pad1)
pad1.Profile = sketch1
pad1.Length = 27.5

# Sketch on XY plane
sketch2 = doc.addObject("Sketcher::SketchObject", "Sketch001")
body.addObject(sketch2)
sketch2.AttachmentSupport = (doc.XY_Plane, [""])
sketch2.MapMode = "FlatFace"
sketch2.addGeometry([
    Part.ArcOfCircle(Part.Circle(App.Vector(-31.357511, 0, 0), App.Vector(0, 0, 1), 10.7), math.radians(-52.548199), math.radians(0)),  # 0
    Part.ArcOfCircle(Part.Circle(App.Vector(-32.464712, 0, 0), App.Vector(0, 0, 1), 11.807201), math.radians(0), math.radians(49.235199)),  # 1
    Part.ArcOfCircle(Part.Circle(App.Vector(-23.775703, 10.078825, 0), App.Vector(0, 0, 1), 1.5), math.radians(82.451801), math.radians(229.235199)),  # 2
    Part.ArcOfCircle(Part.Circle(App.Vector(-22.173109, 22.173109, 0), App.Vector(0, 0, 1), 10.7), math.radians(-97.548199), math.radians(-45)),  # 3
    Part.ArcOfCircle(Part.Circle(App.Vector(-22.956018, 22.956018, 0), App.Vector(0, 0, 1), 11.807201), math.radians(-45), math.radians(4.235199)),  # 4
    Part.ArcOfCircle(Part.Circle(App.Vector(-9.685155, 23.938767, 0), App.Vector(0, 0, 1), 1.5), math.radians(37.451801), math.radians(184.235199)),  # 5
    Part.ArcOfCircle(Part.Circle(App.Vector(0, 31.357511, 0), App.Vector(0, 0, 1), 10.7), math.radians(-142.548199), math.radians(-90)),  # 6
    Part.ArcOfCircle(Part.Circle(App.Vector(0, 32.464712, 0), App.Vector(0, 0, 1), 11.807201), math.radians(-90), math.radians(-40.764801)),  # 7
    Part.ArcOfCircle(Part.Circle(App.Vector(10.078825, 23.775703, 0), App.Vector(0, 0, 1), 1.5), math.radians(-7.548199), math.radians(139.235199)),  # 8
    Part.ArcOfCircle(Part.Circle(App.Vector(22.173109, 22.173109, 0), App.Vector(0, 0, 1), 10.7), math.radians(172.451801), math.radians(225)),  # 9
    Part.ArcOfCircle(Part.Circle(App.Vector(22.956018, 22.956018, 0), App.Vector(0, 0, 1), 11.807201), math.radians(-135), math.radians(-85.764801)),  # 10
    Part.ArcOfCircle(Part.Circle(App.Vector(23.938767, 9.685155, 0), App.Vector(0, 0, 1), 1.5), math.radians(-52.548199), math.radians(94.235199)),  # 11
    Part.ArcOfCircle(Part.Circle(App.Vector(31.357511, 0, 0), App.Vector(0, 0, 1), 10.7), math.radians(127.451801), math.radians(180)),  # 12
    Part.ArcOfCircle(Part.Circle(App.Vector(32.464712, 0, 0), App.Vector(0, 0, 1), 11.807201), math.radians(180), math.radians(229.235199)),  # 13
    Part.ArcOfCircle(Part.Circle(App.Vector(23.775703, -10.078825, 0), App.Vector(0, 0, 1), 1.5), math.radians(-97.548199), math.radians(49.235199)),  # 14
    Part.ArcOfCircle(Part.Circle(App.Vector(22.173109, -22.173109, 0), App.Vector(0, 0, 1), 10.7), math.radians(82.451801), math.radians(135)),  # 15
    Part.ArcOfCircle(Part.Circle(App.Vector(22.956018, -22.956018, 0), App.Vector(0, 0, 1), 11.807201), math.radians(135), math.radians(184.235199)),  # 16
    Part.ArcOfCircle(Part.Circle(App.Vector(9.685155, -23.938767, 0), App.Vector(0, 0, 1), 1.5), math.radians(-142.548199), math.radians(4.235199)),  # 17
    Part.ArcOfCircle(Part.Circle(App.Vector(0, -31.357511, 0), App.Vector(0, 0, 1), 10.7), math.radians(37.451801), math.radians(90)),  # 18
    Part.ArcOfCircle(Part.Circle(App.Vector(0, -32.464712, 0), App.Vector(0, 0, 1), 11.807201), math.radians(90), math.radians(139.235199)),  # 19
    Part.ArcOfCircle(Part.Circle(App.Vector(-10.078825, -23.775703, 0), App.Vector(0, 0, 1), 1.5), math.radians(172.451801), math.radians(319.235199)),  # 20
    Part.ArcOfCircle(Part.Circle(App.Vector(-22.173109, -22.173109, 0), App.Vector(0, 0, 1), 10.7), math.radians(-7.548199), math.radians(45)),  # 21
    Part.ArcOfCircle(Part.Circle(App.Vector(-22.956018, -22.956018, 0), App.Vector(0, 0, 1), 11.807201), math.radians(45), math.radians(94.235199)),  # 22
    Part.ArcOfCircle(Part.Circle(App.Vector(-23.938767, -9.685155, 0), App.Vector(0, 0, 1), 1.5), math.radians(127.451801), math.radians(274.235199)),  # 23
], False)
sketch2.addConstraint([
    Sketcher.Constraint("Tangent", 0, 2, 1, 1),
    Sketcher.Constraint("Tangent", 1, 2, 2, 2),
    Sketcher.Constraint("Tangent", 2, 1, 3, 1),
    Sketcher.Constraint("Tangent", 3, 2, 4, 1),
    Sketcher.Constraint("Tangent", 4, 2, 5, 2),
    Sketcher.Constraint("Tangent", 5, 1, 6, 1),
    Sketcher.Constraint("Tangent", 6, 2, 7, 1),
    Sketcher.Constraint("Tangent", 7, 2, 8, 2),
    Sketcher.Constraint("Tangent", 8, 1, 9, 1),
    Sketcher.Constraint("Tangent", 9, 2, 10, 1),
    Sketcher.Constraint("Tangent", 10, 2, 11, 2),
    Sketcher.Constraint("Tangent", 11, 1, 12, 1),
    Sketcher.Constraint("Tangent", 12, 2, 13, 1),
    Sketcher.Constraint("Tangent", 13, 2, 14, 2),
    Sketcher.Constraint("Tangent", 14, 1, 15, 1),
    Sketcher.Constraint("Tangent", 15, 2, 16, 1),
    Sketcher.Constraint("Tangent", 16, 2, 17, 2),
    Sketcher.Constraint("Tangent", 17, 1, 18, 1),
    Sketcher.Constraint("Tangent", 18, 2, 19, 1),
    Sketcher.Constraint("Tangent", 19, 2, 20, 2),
    Sketcher.Constraint("Tangent", 20, 1, 21, 1),
    Sketcher.Constraint("Tangent", 21, 2, 22, 1),
    Sketcher.Constraint("Tangent", 22, 2, 23, 2),
    Sketcher.Constraint("Tangent", 23, 1, 0, 1),
    Sketcher.Constraint("Equal", 0, 3),
    Sketcher.Constraint("Equal", 1, 4),
    Sketcher.Constraint("Equal", 2, 5),
    Sketcher.Constraint("Equal", 3, 6),
    Sketcher.Constraint("Equal", 4, 7),
    Sketcher.Constraint("Equal", 5, 8),
    Sketcher.Constraint("Equal", 6, 9),
    Sketcher.Constraint("Equal", 7, 10),
    Sketcher.Constraint("Equal", 8, 11),
    Sketcher.Constraint("Equal", 9, 12),
    Sketcher.Constraint("Equal", 10, 13),
    Sketcher.Constraint("Equal", 11, 14),
    Sketcher.Constraint("Equal", 12, 15),
    Sketcher.Constraint("Equal", 13, 16),
    Sketcher.Constraint("Equal", 14, 17),
    Sketcher.Constraint("Equal", 15, 18),
    Sketcher.Constraint("Equal", 16, 19),
    Sketcher.Constraint("Equal", 17, 20),
    Sketcher.Constraint("Equal", 18, 21),
    Sketcher.Constraint("Equal", 19, 22),
    Sketcher.Constraint("Equal", 20, 23),
    Sketcher.Constraint("Symmetric", 0, 3, 12, 3, -1, 1),
    Sketcher.Constraint("Symmetric", 2, 3, 14, 3, -1, 1),
    Sketcher.Constraint("Symmetric", 4, 3, 16, 3, -1, 1),
    Sketcher.Constraint("Symmetric", 6, 3, 18, 3, -1, 1),
    Sketcher.Constraint("Symmetric", 8, 3, 20, 3, -1, 1),
    Sketcher.Constraint("Symmetric", 10, 3, 22, 3, -1, 1),
    Sketcher.Constraint("Symmetric", 3, 3, 9, 3, -2),
    Sketcher.Constraint("PointOnObject", 0, 3, -1),
    Sketcher.Constraint("PointOnObject", 1, 3, -1),
    Sketcher.Constraint("PointOnObject", 6, 3, -2),
    Sketcher.Constraint("PointOnObject", 7, 3, -2),
    Sketcher.Constraint("Horizontal", 4, 3, 10, 3),
    Sketcher.Constraint("Radius", 0, 10.7),
    Sketcher.Constraint("Radius", 2, 1.5),
    Sketcher.Constraint("Radius", 1, 11.807201),
    Sketcher.Constraint("DistanceY", 3, 2, 5, 3, 9.3317),
    Sketcher.Constraint("DistanceX", 4, 2, 5, 1, 2.686702),
    Sketcher.Constraint("DistanceX", 9, 2, 11, 3, 9.3317),
    Sketcher.Constraint("DistanceY", 11, 1, 10, 2, 2.686702),
    Sketcher.Constraint("DistanceX", 0, 3, -1, 1, 31.357511),
])
pocket1 = doc.addObject("PartDesign::Pocket", "Pocket")
body.addObject(pocket1)
pocket1.Profile = sketch2
pocket1.Type = "ThroughAll"
pocket1.Reversed = True

doc.recompute()
